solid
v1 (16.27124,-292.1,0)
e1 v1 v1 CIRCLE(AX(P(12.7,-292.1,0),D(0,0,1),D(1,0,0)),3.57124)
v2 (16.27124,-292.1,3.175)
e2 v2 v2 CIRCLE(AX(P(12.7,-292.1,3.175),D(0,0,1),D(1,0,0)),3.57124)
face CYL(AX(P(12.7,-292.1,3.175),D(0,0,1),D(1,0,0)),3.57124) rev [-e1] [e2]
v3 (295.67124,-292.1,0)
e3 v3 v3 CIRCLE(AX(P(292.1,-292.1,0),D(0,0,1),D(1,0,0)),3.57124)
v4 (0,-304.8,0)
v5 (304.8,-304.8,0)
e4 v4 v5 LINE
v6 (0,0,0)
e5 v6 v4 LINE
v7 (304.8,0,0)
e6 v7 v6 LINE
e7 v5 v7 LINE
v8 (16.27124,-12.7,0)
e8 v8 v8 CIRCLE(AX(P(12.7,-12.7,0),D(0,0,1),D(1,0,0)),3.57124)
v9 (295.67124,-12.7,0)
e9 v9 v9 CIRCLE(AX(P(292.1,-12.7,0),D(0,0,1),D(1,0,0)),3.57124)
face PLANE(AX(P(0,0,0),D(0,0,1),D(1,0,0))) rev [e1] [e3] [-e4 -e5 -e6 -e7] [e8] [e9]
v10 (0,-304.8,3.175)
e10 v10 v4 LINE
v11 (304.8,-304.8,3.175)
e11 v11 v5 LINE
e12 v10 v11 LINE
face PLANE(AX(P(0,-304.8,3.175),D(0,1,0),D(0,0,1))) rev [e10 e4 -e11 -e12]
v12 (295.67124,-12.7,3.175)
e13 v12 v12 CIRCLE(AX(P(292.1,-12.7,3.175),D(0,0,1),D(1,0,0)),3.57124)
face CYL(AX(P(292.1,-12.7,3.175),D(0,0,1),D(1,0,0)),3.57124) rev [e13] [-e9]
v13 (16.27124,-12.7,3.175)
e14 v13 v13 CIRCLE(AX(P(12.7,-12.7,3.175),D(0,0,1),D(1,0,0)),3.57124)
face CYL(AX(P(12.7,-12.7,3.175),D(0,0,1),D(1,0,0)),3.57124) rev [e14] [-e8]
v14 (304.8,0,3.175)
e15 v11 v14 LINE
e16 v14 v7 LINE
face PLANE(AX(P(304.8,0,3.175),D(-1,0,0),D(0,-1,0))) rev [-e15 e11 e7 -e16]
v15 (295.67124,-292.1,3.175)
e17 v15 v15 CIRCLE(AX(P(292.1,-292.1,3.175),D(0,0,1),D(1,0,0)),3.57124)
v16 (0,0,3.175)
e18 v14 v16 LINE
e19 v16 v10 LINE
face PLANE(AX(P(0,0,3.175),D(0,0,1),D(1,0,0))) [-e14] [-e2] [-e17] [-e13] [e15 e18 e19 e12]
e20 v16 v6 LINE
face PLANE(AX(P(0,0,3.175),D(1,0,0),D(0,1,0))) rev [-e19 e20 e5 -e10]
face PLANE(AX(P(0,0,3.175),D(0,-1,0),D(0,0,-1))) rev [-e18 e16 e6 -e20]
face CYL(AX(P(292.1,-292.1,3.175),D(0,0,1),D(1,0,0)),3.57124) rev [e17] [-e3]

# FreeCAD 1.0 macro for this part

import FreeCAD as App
import Part
import Sketcher
Q = App.Units.Quantity


def add_polygon(sketch, points):
    """Adds a closed chain of lines whose ends are joined by coincident constraints."""
    first, n = sketch.GeometryCount, len(points)
    for a, b in zip(points, points[1:] + points[:1]):
        sketch.addGeometry(Part.LineSegment(App.Vector(*a, 0), App.Vector(*b, 0)), False)
    for i in range(n):
        sketch.addConstraint(Sketcher.Constraint("Coincident", first + i, 2, first + (i + 1) % n, 1))

doc = App.newDocument("Part")
body = doc.addObject("PartDesign::Body", "Body")

sketch1 = body.newObject("Sketcher::SketchObject", "Sketch")
sketch1.AttachmentSupport = (doc.getObject("XY_Plane"), [""])
sketch1.MapMode = "FlatFace"
add_polygon(sketch1, [(0, 0), (0, -305), (305, -305), (305, 0)])
sketch1.addConstraint([
    Sketcher.Constraint("Vertical", 0),
    Sketcher.Constraint("Horizontal", 1),
    Sketcher.Constraint("Vertical", 2),
    Sketcher.Constraint("Horizontal", 3),
    Sketcher.Constraint("Coincident", 3, 2, -1, 1),
    Sketcher.Constraint("Equal", 3, 0),
    Sketcher.Constraint("DistanceX", 1, 1, 1, 2, Q("12 in")),
])
pad1 = body.newObject("PartDesign::Pad", "Pad")
pad1.Profile = sketch1
pad1.Length = Q("0.125 in")

sketch2 = body.newObject("Sketcher::SketchObject", "Sketch001")
sketch2.AttachmentSupport = (doc.getObject("XY_Plane"), [""])
sketch2.MapMode = "FlatFace"
sketch2.AttachmentOffset = App.Placement(App.Vector(0, 0, 0.125 * 25.4), App.Rotation())
sketch2.addGeometry([
    Part.Circle(App.Vector(292.1, -292.1, 0), App.Vector(0, 0, 1), 3.6),
    Part.Circle(App.Vector(12.7, -12.7, 0), App.Vector(0, 0, 1), 3.6),
    Part.Circle(App.Vector(292.1, -12.7, 0), App.Vector(0, 0, 1), 3.6),
    Part.Circle(App.Vector(12.7, -292.1, 0), App.Vector(0, 0, 1), 3.6),
], False)
sketch2.addConstraint([
    Sketcher.Constraint("Equal", 0, 1),
    Sketcher.Constraint("Equal", 1, 2),
    Sketcher.Constraint("Equal", 2, 3),
    Sketcher.Constraint("Horizontal", 1, 3, 2, 3),
    Sketcher.Constraint("Horizontal", 0, 3, 3, 3),
    Sketcher.Constraint("Vertical", 0, 3, 2, 3),
    Sketcher.Constraint("Vertical", 1, 3, 3, 3),
    Sketcher.Constraint("DistanceX", 1, 3, 0, 3, Q("11 in")),
    Sketcher.Constraint("DistanceY", 0, 3, 1, 3, Q("11 in")),
    Sketcher.Constraint("Diameter", 0, Q("0.2812 in")),
    Sketcher.Constraint("DistanceX", -1, 1, 0, 3, Q("11.5 in")),
    Sketcher.Constraint("DistanceY", 0, 3, -1, 1, Q("11.5 in")),
])
doc.recompute()
hole = body.newObject("PartDesign::Hole", "Hole")
hole.Profile = sketch2
hole.ThreadType = "None"
hole.Diameter = Q("0.2812 in")
hole.DepthType = "ThroughAll"

doc.recompute()
